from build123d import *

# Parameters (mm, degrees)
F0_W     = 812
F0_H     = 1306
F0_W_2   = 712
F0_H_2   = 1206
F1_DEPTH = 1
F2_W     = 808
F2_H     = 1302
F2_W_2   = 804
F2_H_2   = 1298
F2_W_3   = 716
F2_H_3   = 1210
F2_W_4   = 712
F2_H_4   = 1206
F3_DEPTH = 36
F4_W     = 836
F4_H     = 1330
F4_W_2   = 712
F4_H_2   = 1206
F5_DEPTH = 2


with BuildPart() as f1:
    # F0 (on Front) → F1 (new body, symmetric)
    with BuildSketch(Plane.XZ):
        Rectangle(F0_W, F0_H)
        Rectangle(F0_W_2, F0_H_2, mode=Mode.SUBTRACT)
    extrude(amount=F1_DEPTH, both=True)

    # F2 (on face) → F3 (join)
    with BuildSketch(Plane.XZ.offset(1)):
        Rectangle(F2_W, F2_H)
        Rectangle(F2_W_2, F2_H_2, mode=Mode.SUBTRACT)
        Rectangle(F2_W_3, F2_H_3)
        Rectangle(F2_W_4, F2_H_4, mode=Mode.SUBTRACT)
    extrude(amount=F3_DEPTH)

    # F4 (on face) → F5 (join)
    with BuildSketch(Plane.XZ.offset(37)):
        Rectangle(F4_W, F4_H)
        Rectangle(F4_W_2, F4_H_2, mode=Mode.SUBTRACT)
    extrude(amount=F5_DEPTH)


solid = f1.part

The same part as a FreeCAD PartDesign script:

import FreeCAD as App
import Part
import Sketcher

V = App.Vector

doc = App.newDocument("Part")
body = doc.addObject("PartDesign::Body", "Body")

# Sketch on XZ plane
sketch1 = doc.addObject("Sketcher::SketchObject", "Sketch")
body.addObject(sketch1)
sketch1.AttachmentSupport = (doc.XZ_Plane, [""])
sketch1.MapMode = "FlatFace"
sketch1.addGeometry([
    Part.LineSegment(V(-406, 653, 0), V(-406, -653, 0)),  # 0
    Part.LineSegment(V(-406, -653, 0), V(406, -653, 0)),  # 1
    Part.LineSegment(V(406, -653, 0), V(406, 653, 0)),  # 2
    Part.LineSegment(V(406, 653, 0), V(-406, 653, 0)),  # 3
    Part.LineSegment(V(356, -603, 0), V(-356, -603, 0)),  # 4
    Part.LineSegment(V(-356, -603, 0), V(-356, 603, 0)),  # 5
    Part.LineSegment(V(-356, 603, 0), V(356, 603, 0)),  # 6
    Part.LineSegment(V(356, 603, 0), V(356, -603, 0)),  # 7
], False)
sketch1.addConstraint([
    Sketcher.Constraint("Coincident", 0, 2, 1, 1),
    Sketcher.Constraint("Coincident", 1, 2, 2, 1),
    Sketcher.Constraint("Coincident", 2, 2, 3, 1),
    Sketcher.Constraint("Coincident", 3, 2, 0, 1),
    Sketcher.Constraint("Coincident", 4, 2, 5, 1),
    Sketcher.Constraint("Coincident", 5, 2, 6, 1),
    Sketcher.Constraint("Coincident", 6, 2, 7, 1),
    Sketcher.Constraint("Coincident", 7, 2, 4, 1),
    Sketcher.Constraint("Vertical", 0),
    Sketcher.Constraint("Horizontal", 1),
    Sketcher.Constraint("Vertical", 2),
    Sketcher.Constraint("Horizontal", 3),
    Sketcher.Constraint("Horizontal", 4),
    Sketcher.Constraint("Vertical", 5),
    Sketcher.Constraint("Horizontal", 6),
    Sketcher.Constraint("Vertical", 7),
    Sketcher.Constraint("Symmetric", 0, 2, 2, 2, -1, 1),
    Sketcher.Constraint("Symmetric", 4, 2, 6, 2, -1, 1),
    Sketcher.Constraint("DistanceX", 1, 1, 1, 2, 812.0),
    Sketcher.Constraint("DistanceX", 4, 2, 4, 1, 712.0),
    Sketcher.Constraint("DistanceY", 0, 2, 0, 1, 1306.0),
    Sketcher.Constraint("DistanceY", 5, 1, 5, 2, 1206.0),
])
pad1 = doc.addObject("PartDesign::Pad", "Pad")
body.addObject(pad1)
pad1.Profile = sketch1
pad1.Length = 2
pad1.Midplane = True

# Sketch on XZ plane
sketch2 = doc.addObject("Sketcher::SketchObject", "Sketch001")
body.addObject(sketch2)
sketch2.AttachmentSupport = (doc.XZ_Plane, [""])
sketch2.MapMode = "FlatFace"
sketch2.AttachmentOffset = App.Placement(V(0, 0, 1), App.Rotation())
sketch2.addGeometry([
    Part.LineSegment(V(-404, 651, 0), V(-404, -651, 0)),  # 0
    Part.LineSegment(V(-404, -651, 0), V(404, -651, 0)),  # 1
    Part.LineSegment(V(404, -651, 0), V(404, 651, 0)),  # 2
    Part.LineSegment(V(404, 651, 0), V(-404, 651, 0)),  # 3
    Part.LineSegment(V(402, -649, 0), V(-402, -649, 0)),  # 4
    Part.LineSegment(V(-402, -649, 0), V(-402, 649, 0)),  # 5
    Part.LineSegment(V(-402, 649, 0), V(402, 649, 0)),  # 6
    Part.LineSegment(V(402, 649, 0), V(402, -649, 0)),  # 7
    Part.LineSegment(V(-358, 605, 0), V(-358, -605, 0)),  # 8
    Part.LineSegment(V(-358, -605, 0), V(358, -605, 0)),  # 9
    Part.LineSegment(V(358, -605, 0), V(358, 605, 0)),  # 10
    Part.LineSegment(V(358, 605, 0), V(-358, 605, 0)),  # 11
    Part.LineSegment(V(356, -603, 0), V(-356, -603, 0)),  # 12
    Part.LineSegment(V(-356, -603, 0), V(-356, 603, 0)),  # 13
    Part.LineSegment(V(-356, 603, 0), V(356, 603, 0)),  # 14
    Part.LineSegment(V(356, 603, 0), V(356, -603, 0)),  # 15
], False)
sketch2.addConstraint([
    Sketcher.Constraint("Coincident", 0, 2, 1, 1),
    Sketcher.Constraint("Coincident", 1, 2, 2, 1),
    Sketcher.Constraint("Coincident", 2, 2, 3, 1),
    Sketcher.Constraint("Coincident", 3, 2, 0, 1),
    Sketcher.Constraint("Coincident", 4, 2, 5, 1),
    Sketcher.Constraint("Coincident", 5, 2, 6, 1),
    Sketcher.Constraint("Coincident", 6, 2, 7, 1),
    Sketcher.Constraint("Coincident", 7, 2, 4, 1),
    Sketcher.Constraint("Coincident", 8, 2, 9, 1),
    Sketcher.Constraint("Coincident", 9, 2, 10, 1),
    Sketcher.Constraint("Coincident", 10, 2, 11, 1),
    Sketcher.Constraint("Coincident", 11, 2, 8, 1),
    Sketcher.Constraint("Coincident", 12, 2, 13, 1),
    Sketcher.Constraint("Coincident", 13, 2, 14, 1),
    Sketcher.Constraint("Coincident", 14, 2, 15, 1),
    Sketcher.Constraint("Coincident", 15, 2, 12, 1),
    Sketcher.Constraint("Vertical", 0),
    Sketcher.Constraint("Horizontal", 1),
    Sketcher.Constraint("Vertical", 2),
    Sketcher.Constraint("Horizontal", 3),
    Sketcher.Constraint("Horizontal", 4),
    Sketcher.Constraint("Vertical", 5),
    Sketcher.Constraint("Horizontal", 6),
    Sketcher.Constraint("Vertical", 7),
    Sketcher.Constraint("Vertical", 8),
    Sketcher.Constraint("Horizontal", 9),
    Sketcher.Constraint("Vertical", 10),
    Sketcher.Constraint("Horizontal", 11),
    Sketcher.Constraint("Horizontal", 12),
    Sketcher.Constraint("Vertical", 13),
    Sketcher.Constraint("Horizontal", 14),
    Sketcher.Constraint("Vertical", 15),
    Sketcher.Constraint("Symmetric", 0, 2, 2, 2, -1, 1),
    Sketcher.Constraint("Symmetric", 4, 2, 6, 2, -1, 1),
    Sketcher.Constraint("Symmetric", 8, 2, 10, 2, -1, 1),
    Sketcher.Constraint("Symmetric", 12, 2, 14, 2, -1, 1),
    Sketcher.Constraint("DistanceX", 1, 1, 1, 2, 808.0),
    Sketcher.Constraint("DistanceX", 4, 2, 4, 1, 804.0),
    Sketcher.Constraint("DistanceX", 9, 1, 9, 2, 716.0),
    Sketcher.Constraint("DistanceX", 12, 2, 12, 1, 712.0),
    Sketcher.Constraint("DistanceY", 0, 2, 0, 1, 1302.0),
    Sketcher.Constraint("DistanceY", 5, 1, 5, 2, 1298.0),
    Sketcher.Constraint("DistanceY", 8, 2, 8, 1, 1210.0),
    Sketcher.Constraint("DistanceY", 13, 1, 13, 2, 1206.0),
])
pad2 = doc.addObject("PartDesign::Pad", "Pad001")
body.addObject(pad2)
pad2.Profile = sketch2
pad2.Length = 36

# Sketch on XZ plane
sketch3 = doc.addObject("Sketcher::SketchObject", "Sketch002")
body.addObject(sketch3)
sketch3.AttachmentSupport = (doc.XZ_Plane, [""])
sketch3.MapMode = "FlatFace"
sketch3.AttachmentOffset = App.Placement(V(0, 0, 37), App.Rotation())
sketch3.addGeometry([
    Part.LineSegment(V(-418, 665, 0), V(-418, -665, 0)),  # 0
    Part.LineSegment(V(-418, -665, 0), V(418, -665, 0)),  # 1
    Part.LineSegment(V(418, -665, 0), V(418, 665, 0)),  # 2
    Part.LineSegment(V(418, 665, 0), V(-418, 665, 0)),  # 3
    Part.LineSegment(V(356, -603, 0), V(-356, -603, 0)),  # 4
    Part.LineSegment(V(-356, -603, 0), V(-356, 603, 0)),  # 5
    Part.LineSegment(V(-356, 603, 0), V(356, 603, 0)),  # 6
    Part.LineSegment(V(356, 603, 0), V(356, -603, 0)),  # 7
], False)
sketch3.addConstraint([
    Sketcher.Constraint("Coincident", 0, 2, 1, 1),
    Sketcher.Constraint("Coincident", 1, 2, 2, 1),
    Sketcher.Constraint("Coincident", 2, 2, 3, 1),
    Sketcher.Constraint("Coincident", 3, 2, 0, 1),
    Sketcher.Constraint("Coincident", 4, 2, 5, 1),
    Sketcher.Constraint("Coincident", 5, 2, 6, 1),
    Sketcher.Constraint("Coincident", 6, 2, 7, 1),
    Sketcher.Constraint("Coincident", 7, 2, 4, 1),
    Sketcher.Constraint("Vertical", 0),
    Sketcher.Constraint("Horizontal", 1),
    Sketcher.Constraint("Vertical", 2),
    Sketcher.Constraint("Horizontal", 3),
    Sketcher.Constraint("Horizontal", 4),
    Sketcher.Constraint("Vertical", 5),
    Sketcher.Constraint("Horizontal", 6),
    Sketcher.Constraint("Vertical", 7),
    Sketcher.Constraint("Symmetric", 0, 2, 2, 2, -1, 1),
    Sketcher.Constraint("Symmetric", 4, 2, 6, 2, -1, 1),
    Sketcher.Constraint("DistanceX", 1, 1, 1, 2, 836.0),
    Sketcher.Constraint("DistanceX", 4, 2, 4, 1, 712.0),
    Sketcher.Constraint("DistanceY", 0, 2, 0, 1, 1330.0),
    Sketcher.Constraint("DistanceY", 5, 1, 5, 2, 1206.0),
])
pad3 = doc.addObject("PartDesign::Pad", "Pad002")
body.addObject(pad3)
pad3.Profile = sketch3
pad3.Length = 2

doc.recompute()
